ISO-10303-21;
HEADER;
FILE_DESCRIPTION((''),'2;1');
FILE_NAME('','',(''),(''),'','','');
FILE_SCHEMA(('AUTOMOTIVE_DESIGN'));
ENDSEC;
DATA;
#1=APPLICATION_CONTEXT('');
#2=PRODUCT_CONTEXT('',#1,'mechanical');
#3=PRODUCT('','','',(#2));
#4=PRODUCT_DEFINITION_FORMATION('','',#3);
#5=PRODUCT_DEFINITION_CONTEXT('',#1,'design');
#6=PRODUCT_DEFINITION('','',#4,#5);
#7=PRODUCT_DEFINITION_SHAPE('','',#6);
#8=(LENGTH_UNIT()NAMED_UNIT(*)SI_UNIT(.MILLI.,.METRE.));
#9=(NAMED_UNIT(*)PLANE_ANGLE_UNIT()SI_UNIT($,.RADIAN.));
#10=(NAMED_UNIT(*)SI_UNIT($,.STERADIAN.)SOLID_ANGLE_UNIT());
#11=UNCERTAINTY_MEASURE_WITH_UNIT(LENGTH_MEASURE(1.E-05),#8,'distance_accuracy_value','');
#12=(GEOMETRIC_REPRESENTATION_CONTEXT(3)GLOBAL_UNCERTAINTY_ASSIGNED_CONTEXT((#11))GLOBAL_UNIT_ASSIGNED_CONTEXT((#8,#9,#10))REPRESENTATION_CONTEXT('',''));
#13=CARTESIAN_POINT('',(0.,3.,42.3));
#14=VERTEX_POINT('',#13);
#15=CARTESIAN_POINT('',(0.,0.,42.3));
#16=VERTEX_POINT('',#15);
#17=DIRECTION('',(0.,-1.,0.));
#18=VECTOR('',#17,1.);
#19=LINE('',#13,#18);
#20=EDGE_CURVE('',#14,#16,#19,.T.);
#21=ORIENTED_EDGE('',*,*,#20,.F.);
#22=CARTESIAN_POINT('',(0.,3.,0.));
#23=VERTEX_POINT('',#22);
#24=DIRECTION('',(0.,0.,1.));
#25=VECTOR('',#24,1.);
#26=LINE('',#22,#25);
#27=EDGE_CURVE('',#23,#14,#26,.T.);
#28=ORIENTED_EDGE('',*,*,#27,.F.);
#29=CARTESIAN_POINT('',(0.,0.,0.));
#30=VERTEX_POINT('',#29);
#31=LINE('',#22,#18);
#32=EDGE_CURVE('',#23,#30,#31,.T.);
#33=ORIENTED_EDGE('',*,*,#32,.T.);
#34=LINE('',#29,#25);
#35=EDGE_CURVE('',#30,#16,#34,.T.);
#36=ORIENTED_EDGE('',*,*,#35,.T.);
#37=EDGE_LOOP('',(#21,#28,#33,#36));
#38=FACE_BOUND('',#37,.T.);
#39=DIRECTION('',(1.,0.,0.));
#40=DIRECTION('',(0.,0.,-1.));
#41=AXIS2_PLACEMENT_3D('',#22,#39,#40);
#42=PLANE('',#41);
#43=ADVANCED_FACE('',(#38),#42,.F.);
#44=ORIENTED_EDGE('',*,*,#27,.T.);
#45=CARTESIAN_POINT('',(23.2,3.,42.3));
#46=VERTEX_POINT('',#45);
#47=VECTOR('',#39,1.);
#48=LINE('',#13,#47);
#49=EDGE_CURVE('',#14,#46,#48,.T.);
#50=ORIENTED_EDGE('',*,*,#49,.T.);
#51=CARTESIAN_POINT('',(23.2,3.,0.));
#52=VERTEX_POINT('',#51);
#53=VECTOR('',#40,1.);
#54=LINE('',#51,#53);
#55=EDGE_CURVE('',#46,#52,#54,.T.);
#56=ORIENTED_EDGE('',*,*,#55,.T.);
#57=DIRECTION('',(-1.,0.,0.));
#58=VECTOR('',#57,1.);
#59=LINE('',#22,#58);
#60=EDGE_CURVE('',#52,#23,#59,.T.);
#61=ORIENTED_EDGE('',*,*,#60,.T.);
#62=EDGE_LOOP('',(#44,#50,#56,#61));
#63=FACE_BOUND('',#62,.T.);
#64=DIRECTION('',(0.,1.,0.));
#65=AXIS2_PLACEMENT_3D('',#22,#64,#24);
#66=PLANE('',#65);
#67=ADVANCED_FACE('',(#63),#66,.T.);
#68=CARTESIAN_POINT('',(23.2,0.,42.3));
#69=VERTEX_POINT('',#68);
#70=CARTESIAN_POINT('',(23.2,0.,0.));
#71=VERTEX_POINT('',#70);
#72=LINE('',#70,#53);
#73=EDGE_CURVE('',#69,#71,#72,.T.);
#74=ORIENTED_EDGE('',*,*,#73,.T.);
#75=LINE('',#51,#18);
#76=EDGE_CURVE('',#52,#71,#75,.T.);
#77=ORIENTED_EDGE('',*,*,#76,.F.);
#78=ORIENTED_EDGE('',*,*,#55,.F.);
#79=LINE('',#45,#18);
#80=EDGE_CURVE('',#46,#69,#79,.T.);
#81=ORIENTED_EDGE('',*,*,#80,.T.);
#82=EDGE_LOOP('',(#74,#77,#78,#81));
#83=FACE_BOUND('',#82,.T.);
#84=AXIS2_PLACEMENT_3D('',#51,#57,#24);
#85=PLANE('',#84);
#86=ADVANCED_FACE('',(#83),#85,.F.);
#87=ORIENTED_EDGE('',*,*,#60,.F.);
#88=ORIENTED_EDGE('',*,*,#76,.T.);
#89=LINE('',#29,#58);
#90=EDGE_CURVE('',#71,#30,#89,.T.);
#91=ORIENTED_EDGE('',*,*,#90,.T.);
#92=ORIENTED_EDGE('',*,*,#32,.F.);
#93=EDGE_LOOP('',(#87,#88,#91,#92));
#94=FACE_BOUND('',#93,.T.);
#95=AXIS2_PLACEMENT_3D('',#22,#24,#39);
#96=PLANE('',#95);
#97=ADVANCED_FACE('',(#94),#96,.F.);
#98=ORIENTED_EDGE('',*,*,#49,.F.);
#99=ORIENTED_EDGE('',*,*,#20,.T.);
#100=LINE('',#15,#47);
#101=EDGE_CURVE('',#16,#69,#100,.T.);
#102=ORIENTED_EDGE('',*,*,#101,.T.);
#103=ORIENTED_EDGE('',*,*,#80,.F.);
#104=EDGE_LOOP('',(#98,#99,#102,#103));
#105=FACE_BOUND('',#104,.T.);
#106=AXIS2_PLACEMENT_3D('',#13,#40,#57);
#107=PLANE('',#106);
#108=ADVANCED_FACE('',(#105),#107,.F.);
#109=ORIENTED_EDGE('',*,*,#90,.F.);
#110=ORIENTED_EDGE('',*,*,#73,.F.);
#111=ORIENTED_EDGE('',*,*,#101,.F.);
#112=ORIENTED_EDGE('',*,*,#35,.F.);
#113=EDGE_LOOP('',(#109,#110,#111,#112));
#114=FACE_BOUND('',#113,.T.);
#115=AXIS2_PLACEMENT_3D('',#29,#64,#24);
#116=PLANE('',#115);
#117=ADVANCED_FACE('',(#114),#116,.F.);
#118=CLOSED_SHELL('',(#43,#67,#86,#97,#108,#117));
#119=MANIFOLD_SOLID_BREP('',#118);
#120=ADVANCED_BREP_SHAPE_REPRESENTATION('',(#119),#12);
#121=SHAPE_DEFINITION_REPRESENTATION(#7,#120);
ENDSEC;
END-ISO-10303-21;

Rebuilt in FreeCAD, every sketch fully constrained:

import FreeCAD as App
import Part
import Sketcher
from FreeCAD import Vector
Q = App.Units.Quantity

doc = App.newDocument("Part")
body = doc.addObject("PartDesign::Body", "Body")

sketch1 = body.newObject("Sketcher::SketchObject", "Sketch")
sketch1.AttachmentSupport = (doc.getObject("XZ_Plane"), [""])
sketch1.MapMode = "FlatFace"
sketch1.addGeometry([
    Part.LineSegment(Vector(0, 0, 0), Vector(0, 42, 0)),
    Part.LineSegment(Vector(0, 42, 0), Vector(23, 42, 0)),
    Part.LineSegment(Vector(23, 42, 0), Vector(23, 0, 0)),
    Part.LineSegment(Vector(23, 0, 0), Vector(0, 0, 0)),
], False)
sketch1.addConstraint([
    Sketcher.Constraint("Coincident", 0, 2, 1, 1),
    Sketcher.Constraint("Coincident", 1, 2, 2, 1),
    Sketcher.Constraint("Coincident", 2, 2, 3, 1),
    Sketcher.Constraint("Coincident", 3, 2, 0, 1),
    Sketcher.Constraint("Vertical", 0),
    Sketcher.Constraint("Horizontal", 1),
    Sketcher.Constraint("Vertical", 2),
    Sketcher.Constraint("Horizontal", 3),
    Sketcher.Constraint("Coincident", 3, 2, -1, 1),
    Sketcher.Constraint("DistanceX", 1, 1, 1, 2, Q("23.2 mm")),
    Sketcher.Constraint("DistanceY", 0, 1, 0, 2, Q("42.3 mm")),
])
pad1 = body.newObject("PartDesign::Pad", "Pad")
pad1.Profile = sketch1
pad1.Length = 3
pad1.Reversed = True

doc.recompute()
